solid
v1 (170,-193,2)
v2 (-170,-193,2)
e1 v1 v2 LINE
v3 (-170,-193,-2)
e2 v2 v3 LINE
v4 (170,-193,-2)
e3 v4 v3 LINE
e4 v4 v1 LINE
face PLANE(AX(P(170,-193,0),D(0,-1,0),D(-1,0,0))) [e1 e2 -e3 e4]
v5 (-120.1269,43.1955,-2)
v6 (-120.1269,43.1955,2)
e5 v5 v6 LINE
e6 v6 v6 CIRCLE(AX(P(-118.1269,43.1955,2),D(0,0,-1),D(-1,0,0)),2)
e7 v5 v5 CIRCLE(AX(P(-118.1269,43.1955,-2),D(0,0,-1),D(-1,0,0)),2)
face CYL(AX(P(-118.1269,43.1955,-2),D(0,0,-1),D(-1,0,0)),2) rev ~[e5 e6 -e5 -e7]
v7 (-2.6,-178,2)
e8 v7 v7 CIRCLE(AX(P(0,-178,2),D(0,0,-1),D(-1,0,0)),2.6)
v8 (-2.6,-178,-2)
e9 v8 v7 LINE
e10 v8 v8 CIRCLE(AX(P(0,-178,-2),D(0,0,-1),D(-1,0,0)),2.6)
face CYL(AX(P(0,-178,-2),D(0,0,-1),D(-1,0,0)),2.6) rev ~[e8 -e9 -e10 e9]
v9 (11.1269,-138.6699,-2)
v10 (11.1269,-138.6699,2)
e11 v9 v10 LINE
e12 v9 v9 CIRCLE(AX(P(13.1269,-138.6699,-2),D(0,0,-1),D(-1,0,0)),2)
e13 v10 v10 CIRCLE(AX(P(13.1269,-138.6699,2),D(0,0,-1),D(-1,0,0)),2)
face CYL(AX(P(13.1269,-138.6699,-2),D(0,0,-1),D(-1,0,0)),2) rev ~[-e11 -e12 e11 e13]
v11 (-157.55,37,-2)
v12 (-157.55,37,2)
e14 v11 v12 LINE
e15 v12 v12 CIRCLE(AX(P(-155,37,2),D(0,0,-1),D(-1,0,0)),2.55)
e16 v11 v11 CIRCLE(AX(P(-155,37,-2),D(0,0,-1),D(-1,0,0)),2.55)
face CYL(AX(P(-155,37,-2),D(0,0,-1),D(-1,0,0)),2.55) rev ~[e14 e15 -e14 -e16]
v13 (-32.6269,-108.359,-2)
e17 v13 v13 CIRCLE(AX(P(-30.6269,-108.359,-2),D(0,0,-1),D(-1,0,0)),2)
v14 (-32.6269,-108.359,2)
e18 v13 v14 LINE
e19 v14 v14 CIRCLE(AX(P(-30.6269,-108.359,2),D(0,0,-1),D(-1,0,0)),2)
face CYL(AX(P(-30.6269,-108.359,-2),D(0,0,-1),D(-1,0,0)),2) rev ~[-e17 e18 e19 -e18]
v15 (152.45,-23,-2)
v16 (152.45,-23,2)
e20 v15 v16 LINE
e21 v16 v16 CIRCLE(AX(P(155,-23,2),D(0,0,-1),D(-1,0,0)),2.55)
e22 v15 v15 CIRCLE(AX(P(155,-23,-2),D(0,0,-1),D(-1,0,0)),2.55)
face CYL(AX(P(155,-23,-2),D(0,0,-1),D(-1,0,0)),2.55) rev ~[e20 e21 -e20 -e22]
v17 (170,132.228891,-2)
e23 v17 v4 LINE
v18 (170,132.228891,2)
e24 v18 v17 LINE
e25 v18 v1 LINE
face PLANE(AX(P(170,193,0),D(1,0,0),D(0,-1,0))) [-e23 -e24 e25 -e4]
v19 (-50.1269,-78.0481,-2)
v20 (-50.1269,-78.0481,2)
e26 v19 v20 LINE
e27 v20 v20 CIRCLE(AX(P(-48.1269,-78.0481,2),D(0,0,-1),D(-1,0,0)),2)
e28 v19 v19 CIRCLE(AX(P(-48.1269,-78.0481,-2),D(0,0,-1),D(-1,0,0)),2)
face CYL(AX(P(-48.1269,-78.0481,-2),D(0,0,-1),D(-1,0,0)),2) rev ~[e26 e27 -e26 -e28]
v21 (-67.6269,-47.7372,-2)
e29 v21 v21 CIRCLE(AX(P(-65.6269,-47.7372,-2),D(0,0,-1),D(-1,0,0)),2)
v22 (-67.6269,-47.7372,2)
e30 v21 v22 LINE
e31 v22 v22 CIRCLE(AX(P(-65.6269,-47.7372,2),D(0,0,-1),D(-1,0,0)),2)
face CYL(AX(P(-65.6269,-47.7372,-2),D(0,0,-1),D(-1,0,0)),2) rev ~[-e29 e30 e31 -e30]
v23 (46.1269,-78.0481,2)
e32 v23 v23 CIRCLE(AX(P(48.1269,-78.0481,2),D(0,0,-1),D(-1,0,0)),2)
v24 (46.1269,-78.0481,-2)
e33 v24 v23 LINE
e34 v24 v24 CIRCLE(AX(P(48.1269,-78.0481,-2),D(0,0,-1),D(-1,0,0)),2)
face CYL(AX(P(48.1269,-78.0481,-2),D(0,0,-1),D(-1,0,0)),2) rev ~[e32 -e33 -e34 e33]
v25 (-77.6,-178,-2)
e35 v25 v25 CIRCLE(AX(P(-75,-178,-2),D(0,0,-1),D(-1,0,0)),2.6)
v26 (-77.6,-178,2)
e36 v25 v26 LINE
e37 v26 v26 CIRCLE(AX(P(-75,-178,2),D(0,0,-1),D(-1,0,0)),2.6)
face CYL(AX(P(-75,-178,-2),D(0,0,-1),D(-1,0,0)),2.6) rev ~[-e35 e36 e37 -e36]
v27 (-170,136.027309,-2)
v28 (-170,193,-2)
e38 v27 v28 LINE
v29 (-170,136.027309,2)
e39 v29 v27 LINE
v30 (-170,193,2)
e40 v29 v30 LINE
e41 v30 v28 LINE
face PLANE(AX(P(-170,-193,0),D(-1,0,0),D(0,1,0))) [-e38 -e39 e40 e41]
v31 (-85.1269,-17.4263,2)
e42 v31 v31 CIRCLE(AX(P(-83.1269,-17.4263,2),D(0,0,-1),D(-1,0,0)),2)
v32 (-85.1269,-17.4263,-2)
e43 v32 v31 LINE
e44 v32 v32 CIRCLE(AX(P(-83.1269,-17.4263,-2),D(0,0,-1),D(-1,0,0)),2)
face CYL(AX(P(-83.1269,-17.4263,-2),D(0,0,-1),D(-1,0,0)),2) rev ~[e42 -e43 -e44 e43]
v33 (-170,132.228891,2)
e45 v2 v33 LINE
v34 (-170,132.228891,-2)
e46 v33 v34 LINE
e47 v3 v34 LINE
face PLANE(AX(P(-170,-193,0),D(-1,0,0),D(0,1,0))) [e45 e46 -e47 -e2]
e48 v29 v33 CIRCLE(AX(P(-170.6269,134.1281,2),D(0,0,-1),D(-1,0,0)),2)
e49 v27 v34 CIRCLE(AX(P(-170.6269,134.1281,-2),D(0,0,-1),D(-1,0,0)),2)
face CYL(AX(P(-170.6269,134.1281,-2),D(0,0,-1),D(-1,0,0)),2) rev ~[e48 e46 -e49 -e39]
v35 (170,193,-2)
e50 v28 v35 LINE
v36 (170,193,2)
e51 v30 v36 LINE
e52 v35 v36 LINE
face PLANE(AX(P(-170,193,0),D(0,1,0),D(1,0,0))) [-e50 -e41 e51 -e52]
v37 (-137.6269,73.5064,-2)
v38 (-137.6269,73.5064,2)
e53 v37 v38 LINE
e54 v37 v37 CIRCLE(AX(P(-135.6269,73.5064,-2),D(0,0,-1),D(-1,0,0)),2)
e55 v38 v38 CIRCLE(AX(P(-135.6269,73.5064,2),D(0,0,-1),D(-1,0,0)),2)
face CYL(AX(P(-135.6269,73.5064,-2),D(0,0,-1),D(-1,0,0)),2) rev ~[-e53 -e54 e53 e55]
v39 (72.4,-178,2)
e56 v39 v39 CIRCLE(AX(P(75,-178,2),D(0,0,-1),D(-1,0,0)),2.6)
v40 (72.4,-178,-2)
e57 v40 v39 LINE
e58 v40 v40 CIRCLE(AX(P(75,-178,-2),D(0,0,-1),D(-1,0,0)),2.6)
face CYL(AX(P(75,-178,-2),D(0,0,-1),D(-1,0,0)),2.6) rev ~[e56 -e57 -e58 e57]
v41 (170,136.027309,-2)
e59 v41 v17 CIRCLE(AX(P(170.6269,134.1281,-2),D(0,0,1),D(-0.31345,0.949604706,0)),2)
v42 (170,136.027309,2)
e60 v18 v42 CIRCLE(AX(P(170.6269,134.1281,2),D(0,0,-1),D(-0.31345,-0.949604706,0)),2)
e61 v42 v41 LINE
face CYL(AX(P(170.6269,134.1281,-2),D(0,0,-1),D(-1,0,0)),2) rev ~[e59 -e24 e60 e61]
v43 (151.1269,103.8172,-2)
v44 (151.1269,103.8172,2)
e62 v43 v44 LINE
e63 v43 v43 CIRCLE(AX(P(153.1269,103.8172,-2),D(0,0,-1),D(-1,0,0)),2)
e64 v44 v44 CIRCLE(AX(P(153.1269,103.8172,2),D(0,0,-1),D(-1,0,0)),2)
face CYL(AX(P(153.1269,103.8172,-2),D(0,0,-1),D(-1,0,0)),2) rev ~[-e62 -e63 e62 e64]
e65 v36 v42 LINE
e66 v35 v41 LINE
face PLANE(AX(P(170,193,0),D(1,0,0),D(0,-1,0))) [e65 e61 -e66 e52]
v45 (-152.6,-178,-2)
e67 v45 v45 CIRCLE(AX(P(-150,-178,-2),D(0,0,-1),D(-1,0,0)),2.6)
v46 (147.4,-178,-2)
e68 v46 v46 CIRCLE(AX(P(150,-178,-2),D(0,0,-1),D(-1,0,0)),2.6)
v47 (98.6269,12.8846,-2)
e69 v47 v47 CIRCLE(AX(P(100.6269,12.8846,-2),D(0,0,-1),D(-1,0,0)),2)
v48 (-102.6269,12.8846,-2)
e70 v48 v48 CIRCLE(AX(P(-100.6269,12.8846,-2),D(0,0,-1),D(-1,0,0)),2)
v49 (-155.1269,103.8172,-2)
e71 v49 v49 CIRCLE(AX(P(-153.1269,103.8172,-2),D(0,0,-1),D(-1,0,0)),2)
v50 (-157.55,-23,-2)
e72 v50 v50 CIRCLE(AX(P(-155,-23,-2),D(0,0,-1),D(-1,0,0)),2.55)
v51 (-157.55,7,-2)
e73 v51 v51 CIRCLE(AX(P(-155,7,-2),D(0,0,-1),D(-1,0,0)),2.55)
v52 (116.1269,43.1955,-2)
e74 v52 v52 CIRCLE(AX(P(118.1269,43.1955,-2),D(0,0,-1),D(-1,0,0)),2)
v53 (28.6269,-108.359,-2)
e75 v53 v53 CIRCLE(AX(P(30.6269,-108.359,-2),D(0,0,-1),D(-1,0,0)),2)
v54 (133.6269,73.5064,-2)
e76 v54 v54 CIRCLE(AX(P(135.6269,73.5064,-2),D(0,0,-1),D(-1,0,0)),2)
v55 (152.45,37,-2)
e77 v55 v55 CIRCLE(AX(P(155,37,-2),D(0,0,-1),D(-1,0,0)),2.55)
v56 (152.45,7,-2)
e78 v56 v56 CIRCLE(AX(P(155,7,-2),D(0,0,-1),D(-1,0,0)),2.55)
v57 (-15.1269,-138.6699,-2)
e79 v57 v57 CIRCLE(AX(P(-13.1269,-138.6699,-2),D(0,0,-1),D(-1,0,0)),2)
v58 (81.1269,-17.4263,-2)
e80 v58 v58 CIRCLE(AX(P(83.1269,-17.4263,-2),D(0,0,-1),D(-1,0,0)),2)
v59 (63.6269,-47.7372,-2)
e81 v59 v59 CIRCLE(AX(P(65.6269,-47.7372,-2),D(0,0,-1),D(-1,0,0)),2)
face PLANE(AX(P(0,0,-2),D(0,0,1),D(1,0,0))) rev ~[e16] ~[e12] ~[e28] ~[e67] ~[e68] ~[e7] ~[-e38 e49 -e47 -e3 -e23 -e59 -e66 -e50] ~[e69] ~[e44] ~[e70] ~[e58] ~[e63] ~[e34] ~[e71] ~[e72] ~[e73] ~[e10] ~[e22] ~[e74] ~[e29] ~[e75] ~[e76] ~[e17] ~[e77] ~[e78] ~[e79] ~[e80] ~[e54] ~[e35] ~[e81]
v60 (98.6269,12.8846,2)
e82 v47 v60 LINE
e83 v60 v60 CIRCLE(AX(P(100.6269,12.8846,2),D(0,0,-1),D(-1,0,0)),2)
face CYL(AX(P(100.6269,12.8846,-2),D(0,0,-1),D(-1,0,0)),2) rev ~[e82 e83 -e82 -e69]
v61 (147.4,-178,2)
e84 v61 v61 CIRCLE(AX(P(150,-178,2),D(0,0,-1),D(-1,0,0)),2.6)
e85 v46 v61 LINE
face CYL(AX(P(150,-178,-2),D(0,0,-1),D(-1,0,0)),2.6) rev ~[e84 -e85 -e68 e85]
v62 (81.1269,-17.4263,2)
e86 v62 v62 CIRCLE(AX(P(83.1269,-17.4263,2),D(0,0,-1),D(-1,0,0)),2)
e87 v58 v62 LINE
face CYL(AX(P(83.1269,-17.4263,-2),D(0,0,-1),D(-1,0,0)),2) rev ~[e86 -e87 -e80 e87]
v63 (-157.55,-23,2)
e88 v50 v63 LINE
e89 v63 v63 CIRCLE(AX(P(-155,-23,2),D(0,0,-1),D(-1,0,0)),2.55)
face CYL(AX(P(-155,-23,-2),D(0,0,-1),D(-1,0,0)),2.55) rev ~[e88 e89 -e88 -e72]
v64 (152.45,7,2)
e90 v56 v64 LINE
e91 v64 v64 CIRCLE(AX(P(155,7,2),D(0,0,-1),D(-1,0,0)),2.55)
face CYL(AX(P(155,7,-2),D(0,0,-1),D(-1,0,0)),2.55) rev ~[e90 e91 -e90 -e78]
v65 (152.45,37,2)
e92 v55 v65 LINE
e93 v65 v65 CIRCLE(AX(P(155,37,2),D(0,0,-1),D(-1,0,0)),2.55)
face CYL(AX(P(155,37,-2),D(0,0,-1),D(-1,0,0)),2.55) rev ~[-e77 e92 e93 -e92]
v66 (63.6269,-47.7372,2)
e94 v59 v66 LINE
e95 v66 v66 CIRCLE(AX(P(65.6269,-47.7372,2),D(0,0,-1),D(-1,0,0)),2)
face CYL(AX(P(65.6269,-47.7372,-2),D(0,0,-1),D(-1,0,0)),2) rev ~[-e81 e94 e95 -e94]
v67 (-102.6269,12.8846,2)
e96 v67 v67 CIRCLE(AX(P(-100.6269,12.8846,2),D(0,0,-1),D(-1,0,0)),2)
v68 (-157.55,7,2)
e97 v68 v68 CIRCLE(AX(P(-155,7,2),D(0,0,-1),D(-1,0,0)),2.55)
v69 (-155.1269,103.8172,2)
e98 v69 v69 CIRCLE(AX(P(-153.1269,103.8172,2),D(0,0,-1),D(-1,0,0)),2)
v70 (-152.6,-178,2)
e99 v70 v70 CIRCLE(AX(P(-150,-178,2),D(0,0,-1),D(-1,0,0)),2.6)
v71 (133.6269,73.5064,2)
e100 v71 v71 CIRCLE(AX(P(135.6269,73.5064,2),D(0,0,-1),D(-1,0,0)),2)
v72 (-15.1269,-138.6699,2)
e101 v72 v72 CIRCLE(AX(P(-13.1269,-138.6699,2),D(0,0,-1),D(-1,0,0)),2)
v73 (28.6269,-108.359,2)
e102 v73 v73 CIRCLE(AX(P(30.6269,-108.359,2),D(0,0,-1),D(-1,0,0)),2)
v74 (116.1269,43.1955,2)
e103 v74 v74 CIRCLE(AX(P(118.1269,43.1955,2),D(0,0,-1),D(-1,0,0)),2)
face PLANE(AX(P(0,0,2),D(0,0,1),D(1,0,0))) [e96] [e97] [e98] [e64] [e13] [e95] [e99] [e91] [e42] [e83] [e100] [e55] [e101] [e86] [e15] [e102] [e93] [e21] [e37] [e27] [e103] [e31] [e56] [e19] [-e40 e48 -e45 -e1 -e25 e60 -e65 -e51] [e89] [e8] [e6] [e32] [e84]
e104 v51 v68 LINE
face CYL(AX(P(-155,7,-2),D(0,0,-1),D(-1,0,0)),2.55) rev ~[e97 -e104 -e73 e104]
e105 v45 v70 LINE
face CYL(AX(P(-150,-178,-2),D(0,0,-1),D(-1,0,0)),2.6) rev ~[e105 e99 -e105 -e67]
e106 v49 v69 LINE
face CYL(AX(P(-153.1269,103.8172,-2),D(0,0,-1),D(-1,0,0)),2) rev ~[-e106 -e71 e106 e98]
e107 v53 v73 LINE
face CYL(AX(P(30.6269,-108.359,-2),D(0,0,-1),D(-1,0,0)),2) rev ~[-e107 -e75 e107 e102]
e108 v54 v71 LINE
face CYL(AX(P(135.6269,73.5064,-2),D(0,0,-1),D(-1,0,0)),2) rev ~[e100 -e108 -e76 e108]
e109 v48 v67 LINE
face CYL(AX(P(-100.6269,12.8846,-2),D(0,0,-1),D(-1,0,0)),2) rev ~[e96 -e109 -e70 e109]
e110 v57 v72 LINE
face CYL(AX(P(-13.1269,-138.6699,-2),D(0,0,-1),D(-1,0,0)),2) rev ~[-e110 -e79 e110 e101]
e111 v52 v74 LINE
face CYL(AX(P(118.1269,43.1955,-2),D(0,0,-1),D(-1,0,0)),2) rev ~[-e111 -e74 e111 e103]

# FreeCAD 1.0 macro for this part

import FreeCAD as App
import Part
import Sketcher
Q = App.Units.Quantity


def add_polygon(sketch, points):
    """Adds a closed chain of lines whose ends are joined by coincident constraints."""
    first, n = sketch.GeometryCount, len(points)
    for a, b in zip(points, points[1:] + points[:1]):
        sketch.addGeometry(Part.LineSegment(App.Vector(*a, 0), App.Vector(*b, 0)), False)
    for i in range(n):
        sketch.addConstraint(Sketcher.Constraint("Coincident", first + i, 2, first + (i + 1) % n, 1))

doc = App.newDocument("Part")
body = doc.addObject("PartDesign::Body", "Body")

sketch1 = body.newObject("Sketcher::SketchObject", "Sketch")
sketch1.AttachmentSupport = (doc.getObject("XY_Plane"), [""])
sketch1.MapMode = "FlatFace"
add_polygon(sketch1, [(-170, -193), (170, -193), (170, 193), (-170, 193)])
sketch1.addConstraint(Sketcher.Constraint("Horizontal", 0))
sketch1.addConstraint(Sketcher.Constraint("Vertical", 1))
sketch1.addConstraint(Sketcher.Constraint("Horizontal", 2))
sketch1.addConstraint(Sketcher.Constraint("Vertical", 3))
sketch1.addConstraint(Sketcher.Constraint("Symmetric", 0, 2, 2, 2, -1, 1))
sketch1.addConstraint(Sketcher.Constraint("DistanceX", 0, 1, 0, 2, Q("340 mm")))
sketch1.addConstraint(Sketcher.Constraint("DistanceY", 1, 1, 1, 2, Q("386 mm")))
pad1 = body.newObject("PartDesign::Pad", "Pad")
pad1.Profile = sketch1
pad1.Length = 4
pad1.Midplane = True

sketch2 = body.newObject("Sketcher::SketchObject", "Sketch001")
sketch2.AttachmentSupport = (doc.getObject("XY_Plane"), [""])
sketch2.MapMode = "FlatFace"
sketch2.AttachmentOffset = App.Placement(App.Vector(0, 0, -2), App.Rotation())
sketch2.addGeometry(Part.Circle(App.Vector(13.1269, -138.6699, 0), App.Vector(0, 0, 1), 2), False)
sketch2.addGeometry(Part.Circle(App.Vector(30.6269, -108.359, 0), App.Vector(0, 0, 1), 2), False)
sketch2.addGeometry(Part.Circle(App.Vector(48.1269, -78.0481, 0), App.Vector(0, 0, 1), 2), False)
sketch2.addGeometry(Part.Circle(App.Vector(65.6269, -47.7372, 0), App.Vector(0, 0, 1), 2), False)
sketch2.addGeometry(Part.Circle(App.Vector(83.1269, -17.4263, 0), App.Vector(0, 0, 1), 2), False)
sketch2.addGeometry(Part.Circle(App.Vector(100.6269, 12.8846, 0), App.Vector(0, 0, 1), 2), False)
sketch2.addGeometry(Part.Circle(App.Vector(118.1269, 43.1955, 0), App.Vector(0, 0, 1), 2), False)
sketch2.addGeometry(Part.Circle(App.Vector(135.6269, 73.5064, 0), App.Vector(0, 0, 1), 2), False)
sketch2.addGeometry(Part.Circle(App.Vector(153.1269, 103.8172, 0), App.Vector(0, 0, 1), 2), False)
sketch2.addGeometry(Part.Circle(App.Vector(170.6269, 134.1281, 0), App.Vector(0, 0, 1), 2), False)
sketch2.addGeometry(Part.Circle(App.Vector(-13.1269, -138.6699, 0), App.Vector(0, 0, 1), 2), False)
sketch2.addGeometry(Part.Circle(App.Vector(-30.6269, -108.359, 0), App.Vector(0, 0, 1), 2), False)
sketch2.addGeometry(Part.Circle(App.Vector(-48.1269, -78.0481, 0), App.Vector(0, 0, 1), 2), False)
sketch2.addGeometry(Part.Circle(App.Vector(-65.6269, -47.7372, 0), App.Vector(0, 0, 1), 2), False)
sketch2.addGeometry(Part.Circle(App.Vector(-83.1269, -17.4263, 0), App.Vector(0, 0, 1), 2), False)
sketch2.addGeometry(Part.Circle(App.Vector(-100.6269, 12.8846, 0), App.Vector(0, 0, 1), 2), False)
sketch2.addGeometry(Part.Circle(App.Vector(-118.1269, 43.1955, 0), App.Vector(0, 0, 1), 2), False)
sketch2.addGeometry(Part.Circle(App.Vector(-135.6269, 73.5064, 0), App.Vector(0, 0, 1), 2), False)
sketch2.addGeometry(Part.Circle(App.Vector(-153.1269, 103.8172, 0), App.Vector(0, 0, 1), 2), False)
sketch2.addGeometry(Part.Circle(App.Vector(-170.6269, 134.1281, 0), App.Vector(0, 0, 1), 2), False)
sketch2.addConstraint(Sketcher.Constraint("Equal", 0, 1))
sketch2.addConstraint(Sketcher.Constraint("Equal", 1, 2))
sketch2.addConstraint(Sketcher.Constraint("Equal", 2, 3))
sketch2.addConstraint(Sketcher.Constraint("Equal", 3, 4))
sketch2.addConstraint(Sketcher.Constraint("Equal", 4, 5))
sketch2.addConstraint(Sketcher.Constraint("Equal", 5, 6))
sketch2.addConstraint(Sketcher.Constraint("Equal", 6, 7))
sketch2.addConstraint(Sketcher.Constraint("Equal", 7, 8))
sketch2.addConstraint(Sketcher.Constraint("Equal", 8, 9))
sketch2.addConstraint(Sketcher.Constraint("Equal", 9, 10))
sketch2.addConstraint(Sketcher.Constraint("Equal", 10, 11))
sketch2.addConstraint(Sketcher.Constraint("Equal", 11, 12))
sketch2.addConstraint(Sketcher.Constraint("Equal", 12, 13))
sketch2.addConstraint(Sketcher.Constraint("Equal", 13, 14))
sketch2.addConstraint(Sketcher.Constraint("Equal", 14, 15))
sketch2.addConstraint(Sketcher.Constraint("Equal", 15, 16))
sketch2.addConstraint(Sketcher.Constraint("Equal", 16, 17))
sketch2.addConstraint(Sketcher.Constraint("Equal", 17, 18))
sketch2.addConstraint(Sketcher.Constraint("Equal", 18, 19))
sketch2.addConstraint(Sketcher.Constraint("Symmetric", 0, 3, 10, 3, -2))
sketch2.addConstraint(Sketcher.Constraint("Symmetric", 1, 3, 11, 3, -2))
sketch2.addConstraint(Sketcher.Constraint("Symmetric", 2, 3, 12, 3, -2))
sketch2.addConstraint(Sketcher.Constraint("Symmetric", 3, 3, 13, 3, -2))
sketch2.addConstraint(Sketcher.Constraint("Symmetric", 4, 3, 14, 3, -2))
sketch2.addConstraint(Sketcher.Constraint("Symmetric", 5, 3, 15, 3, -2))
sketch2.addConstraint(Sketcher.Constraint("Symmetric", 6, 3, 16, 3, -2))
sketch2.addConstraint(Sketcher.Constraint("Symmetric", 7, 3, 17, 3, -2))
sketch2.addConstraint(Sketcher.Constraint("Symmetric", 8, 3, 18, 3, -2))
sketch2.addConstraint(Sketcher.Constraint("Symmetric", 9, 3, 19, 3, -2))
sketch2.addConstraint(Sketcher.Constraint("Diameter", 0, Q("4 mm")))
sketch2.addConstraint(Sketcher.Constraint("DistanceX", 0, 3, 2, 3, Q("35 mm")))
sketch2.addConstraint(Sketcher.Constraint("DistanceX", 1, 3, 3, 3, Q("35 mm")))
sketch2.addConstraint(Sketcher.Constraint("DistanceX", 2, 3, 4, 3, Q("35 mm")))
sketch2.addConstraint(Sketcher.Constraint("DistanceX", 3, 3, 5, 3, Q("35 mm")))
sketch2.addConstraint(Sketcher.Constraint("DistanceX", 4, 3, 6, 3, Q("35 mm")))
sketch2.addConstraint(Sketcher.Constraint("DistanceX", 5, 3, 7, 3, Q("35 mm")))
sketch2.addConstraint(Sketcher.Constraint("DistanceX", 6, 3, 8, 3, Q("35 mm")))
sketch2.addConstraint(Sketcher.Constraint("DistanceX", 7, 3, 9, 3, Q("35 mm")))
sketch2.addConstraint(Sketcher.Constraint("DistanceX", 0, 3, 1, 3, Q("17.5 mm")))
sketch2.addConstraint(Sketcher.Constraint("DistanceY", 0, 3, -1, 1, Q("138.67 mm")))
sketch2.addConstraint(Sketcher.Constraint("DistanceX", -1, 1, 0, 3, Q("13.127 mm")))
sketch2.addConstraint(Sketcher.Constraint("DistanceY", 1, 3, -1, 1, Q("108.359 mm")))
sketch2.addConstraint(Sketcher.Constraint("DistanceY", 2, 3, -1, 1, Q("78.048 mm")))
sketch2.addConstraint(Sketcher.Constraint("DistanceY", -1, 1, 9, 3, Q("134.128 mm")))
sketch2.addConstraint(Sketcher.Constraint("DistanceY", 2, 3, 3, 3, Q("30.311 mm")))
sketch2.addConstraint(Sketcher.Constraint("DistanceY", 3, 3, 4, 3, Q("30.311 mm")))
sketch2.addConstraint(Sketcher.Constraint("DistanceY", 4, 3, 5, 3, Q("30.311 mm")))
sketch2.addConstraint(Sketcher.Constraint("DistanceY", 5, 3, 6, 3, Q("30.311 mm")))
sketch2.addConstraint(Sketcher.Constraint("DistanceY", 6, 3, 7, 3, Q("30.311 mm")))
sketch2.addConstraint(Sketcher.Constraint("DistanceY", 8, 3, 9, 3, Q("30.311 mm")))
pocket1 = body.newObject("PartDesign::Pocket", "Pocket")
pocket1.Profile = sketch2
pocket1.Type = "UpToFirst"
pocket1.Reversed = True

sketch3 = body.newObject("Sketcher::SketchObject", "Sketch002")
sketch3.AttachmentSupport = (doc.getObject("XY_Plane"), [""])
sketch3.MapMode = "FlatFace"
sketch3.AttachmentOffset = App.Placement(App.Vector(0, 0, -2), App.Rotation())
sketch3.addGeometry(Part.Circle(App.Vector(150, -178, 0), App.Vector(0, 0, 1), 2.6), False)
sketch3.addGeometry(Part.Circle(App.Vector(75, -178, 0), App.Vector(0, 0, 1), 2.6), False)
sketch3.addGeometry(Part.Circle(App.Vector(0, -178, 0), App.Vector(0, 0, 1), 2.6), False)
sketch3.addGeometry(Part.Circle(App.Vector(-75, -178, 0), App.Vector(0, 0, 1), 2.6), False)
sketch3.addGeometry(Part.Circle(App.Vector(-150, -178, 0), App.Vector(0, 0, 1), 2.6), False)
sketch3.addConstraint(Sketcher.Constraint("Equal", 0, 1))
sketch3.addConstraint(Sketcher.Constraint("Equal", 1, 2))
sketch3.addConstraint(Sketcher.Constraint("Equal", 2, 3))
sketch3.addConstraint(Sketcher.Constraint("Equal", 3, 4))
sketch3.addConstraint(Sketcher.Constraint("Symmetric", 1, 3, 3, 3, -2))
sketch3.addConstraint(Sketcher.Constraint("Symmetric", 0, 3, 4, 3, -2))
sketch3.addConstraint(Sketcher.Constraint("PointOnObject", 2, 3, -2))
sketch3.addConstraint(Sketcher.Constraint("Horizontal", 0, 3, 1, 3))
sketch3.addConstraint(Sketcher.Constraint("Horizontal", 1, 3, 2, 3))
sketch3.addConstraint(Sketcher.Constraint("Diameter", 0, Q("5.2 mm")))
sketch3.addConstraint(Sketcher.Constraint("DistanceX", -1, 1, 0, 3, Q("150 mm")))
sketch3.addConstraint(Sketcher.Constraint("DistanceY", 0, 3, -1, 1, Q("178 mm")))
sketch3.addConstraint(Sketcher.Constraint("DistanceX", -1, 1, 1, 3, Q("75 mm")))
pocket2 = body.newObject("PartDesign::Pocket", "Pocket001")
pocket2.Profile = sketch3
pocket2.Length = 4
pocket2.Reversed = True

sketch4 = body.newObject("Sketcher::SketchObject", "Sketch003")
sketch4.AttachmentSupport = (doc.getObject("XY_Plane"), [""])
sketch4.MapMode = "FlatFace"
sketch4.AttachmentOffset = App.Placement(App.Vector(0, 0, -2), App.Rotation())
sketch4.addGeometry(Part.Circle(App.Vector(155, -23, 0), App.Vector(0, 0, 1), 2.55), False)
sketch4.addGeometry(Part.Circle(App.Vector(155, 7, 0), App.Vector(0, 0, 1), 2.55), False)
sketch4.addGeometry(Part.Circle(App.Vector(155, 37, 0), App.Vector(0, 0, 1), 2.55), False)
sketch4.addGeometry(Part.Circle(App.Vector(-155, 37, 0), App.Vector(0, 0, 1), 2.55), False)
sketch4.addGeometry(Part.Circle(App.Vector(-155, 7, 0), App.Vector(0, 0, 1), 2.55), False)
sketch4.addGeometry(Part.Circle(App.Vector(-155, -23, 0), App.Vector(0, 0, 1), 2.55), False)
sketch4.addConstraint(Sketcher.Constraint("Equal", 0, 1))
sketch4.addConstraint(Sketcher.Constraint("Equal", 1, 2))
sketch4.addConstraint(Sketcher.Constraint("Equal", 2, 3))
sketch4.addConstraint(Sketcher.Constraint("Equal", 3, 4))
sketch4.addConstraint(Sketcher.Constraint("Equal", 4, 5))
sketch4.addConstraint(Sketcher.Constraint("Symmetric", 2, 3, 3, 3, -2))
sketch4.addConstraint(Sketcher.Constraint("Symmetric", 1, 3, 4, 3, -2))
sketch4.addConstraint(Sketcher.Constraint("Symmetric", 0, 3, 5, 3, -2))
sketch4.addConstraint(Sketcher.Constraint("Vertical", 0, 3, 1, 3))
sketch4.addConstraint(Sketcher.Constraint("Vertical", 1, 3, 2, 3))
sketch4.addConstraint(Sketcher.Constraint("Diameter", 0, Q("5.1 mm")))
sketch4.addConstraint(Sketcher.Constraint("DistanceX", -1, 1, 0, 3, Q("155 mm")))
sketch4.addConstraint(Sketcher.Constraint("DistanceY", 0, 3, -1, 1, Q("23 mm")))
sketch4.addConstraint(Sketcher.Constraint("DistanceY", -1, 1, 1, 3, Q("7 mm")))
sketch4.addConstraint(Sketcher.Constraint("DistanceY", -1, 1, 2, 3, Q("37 mm")))
pocket3 = body.newObject("PartDesign::Pocket", "Pocket002")
pocket3.Profile = sketch4
pocket3.Length = 4
pocket3.Reversed = True

doc.recompute()
